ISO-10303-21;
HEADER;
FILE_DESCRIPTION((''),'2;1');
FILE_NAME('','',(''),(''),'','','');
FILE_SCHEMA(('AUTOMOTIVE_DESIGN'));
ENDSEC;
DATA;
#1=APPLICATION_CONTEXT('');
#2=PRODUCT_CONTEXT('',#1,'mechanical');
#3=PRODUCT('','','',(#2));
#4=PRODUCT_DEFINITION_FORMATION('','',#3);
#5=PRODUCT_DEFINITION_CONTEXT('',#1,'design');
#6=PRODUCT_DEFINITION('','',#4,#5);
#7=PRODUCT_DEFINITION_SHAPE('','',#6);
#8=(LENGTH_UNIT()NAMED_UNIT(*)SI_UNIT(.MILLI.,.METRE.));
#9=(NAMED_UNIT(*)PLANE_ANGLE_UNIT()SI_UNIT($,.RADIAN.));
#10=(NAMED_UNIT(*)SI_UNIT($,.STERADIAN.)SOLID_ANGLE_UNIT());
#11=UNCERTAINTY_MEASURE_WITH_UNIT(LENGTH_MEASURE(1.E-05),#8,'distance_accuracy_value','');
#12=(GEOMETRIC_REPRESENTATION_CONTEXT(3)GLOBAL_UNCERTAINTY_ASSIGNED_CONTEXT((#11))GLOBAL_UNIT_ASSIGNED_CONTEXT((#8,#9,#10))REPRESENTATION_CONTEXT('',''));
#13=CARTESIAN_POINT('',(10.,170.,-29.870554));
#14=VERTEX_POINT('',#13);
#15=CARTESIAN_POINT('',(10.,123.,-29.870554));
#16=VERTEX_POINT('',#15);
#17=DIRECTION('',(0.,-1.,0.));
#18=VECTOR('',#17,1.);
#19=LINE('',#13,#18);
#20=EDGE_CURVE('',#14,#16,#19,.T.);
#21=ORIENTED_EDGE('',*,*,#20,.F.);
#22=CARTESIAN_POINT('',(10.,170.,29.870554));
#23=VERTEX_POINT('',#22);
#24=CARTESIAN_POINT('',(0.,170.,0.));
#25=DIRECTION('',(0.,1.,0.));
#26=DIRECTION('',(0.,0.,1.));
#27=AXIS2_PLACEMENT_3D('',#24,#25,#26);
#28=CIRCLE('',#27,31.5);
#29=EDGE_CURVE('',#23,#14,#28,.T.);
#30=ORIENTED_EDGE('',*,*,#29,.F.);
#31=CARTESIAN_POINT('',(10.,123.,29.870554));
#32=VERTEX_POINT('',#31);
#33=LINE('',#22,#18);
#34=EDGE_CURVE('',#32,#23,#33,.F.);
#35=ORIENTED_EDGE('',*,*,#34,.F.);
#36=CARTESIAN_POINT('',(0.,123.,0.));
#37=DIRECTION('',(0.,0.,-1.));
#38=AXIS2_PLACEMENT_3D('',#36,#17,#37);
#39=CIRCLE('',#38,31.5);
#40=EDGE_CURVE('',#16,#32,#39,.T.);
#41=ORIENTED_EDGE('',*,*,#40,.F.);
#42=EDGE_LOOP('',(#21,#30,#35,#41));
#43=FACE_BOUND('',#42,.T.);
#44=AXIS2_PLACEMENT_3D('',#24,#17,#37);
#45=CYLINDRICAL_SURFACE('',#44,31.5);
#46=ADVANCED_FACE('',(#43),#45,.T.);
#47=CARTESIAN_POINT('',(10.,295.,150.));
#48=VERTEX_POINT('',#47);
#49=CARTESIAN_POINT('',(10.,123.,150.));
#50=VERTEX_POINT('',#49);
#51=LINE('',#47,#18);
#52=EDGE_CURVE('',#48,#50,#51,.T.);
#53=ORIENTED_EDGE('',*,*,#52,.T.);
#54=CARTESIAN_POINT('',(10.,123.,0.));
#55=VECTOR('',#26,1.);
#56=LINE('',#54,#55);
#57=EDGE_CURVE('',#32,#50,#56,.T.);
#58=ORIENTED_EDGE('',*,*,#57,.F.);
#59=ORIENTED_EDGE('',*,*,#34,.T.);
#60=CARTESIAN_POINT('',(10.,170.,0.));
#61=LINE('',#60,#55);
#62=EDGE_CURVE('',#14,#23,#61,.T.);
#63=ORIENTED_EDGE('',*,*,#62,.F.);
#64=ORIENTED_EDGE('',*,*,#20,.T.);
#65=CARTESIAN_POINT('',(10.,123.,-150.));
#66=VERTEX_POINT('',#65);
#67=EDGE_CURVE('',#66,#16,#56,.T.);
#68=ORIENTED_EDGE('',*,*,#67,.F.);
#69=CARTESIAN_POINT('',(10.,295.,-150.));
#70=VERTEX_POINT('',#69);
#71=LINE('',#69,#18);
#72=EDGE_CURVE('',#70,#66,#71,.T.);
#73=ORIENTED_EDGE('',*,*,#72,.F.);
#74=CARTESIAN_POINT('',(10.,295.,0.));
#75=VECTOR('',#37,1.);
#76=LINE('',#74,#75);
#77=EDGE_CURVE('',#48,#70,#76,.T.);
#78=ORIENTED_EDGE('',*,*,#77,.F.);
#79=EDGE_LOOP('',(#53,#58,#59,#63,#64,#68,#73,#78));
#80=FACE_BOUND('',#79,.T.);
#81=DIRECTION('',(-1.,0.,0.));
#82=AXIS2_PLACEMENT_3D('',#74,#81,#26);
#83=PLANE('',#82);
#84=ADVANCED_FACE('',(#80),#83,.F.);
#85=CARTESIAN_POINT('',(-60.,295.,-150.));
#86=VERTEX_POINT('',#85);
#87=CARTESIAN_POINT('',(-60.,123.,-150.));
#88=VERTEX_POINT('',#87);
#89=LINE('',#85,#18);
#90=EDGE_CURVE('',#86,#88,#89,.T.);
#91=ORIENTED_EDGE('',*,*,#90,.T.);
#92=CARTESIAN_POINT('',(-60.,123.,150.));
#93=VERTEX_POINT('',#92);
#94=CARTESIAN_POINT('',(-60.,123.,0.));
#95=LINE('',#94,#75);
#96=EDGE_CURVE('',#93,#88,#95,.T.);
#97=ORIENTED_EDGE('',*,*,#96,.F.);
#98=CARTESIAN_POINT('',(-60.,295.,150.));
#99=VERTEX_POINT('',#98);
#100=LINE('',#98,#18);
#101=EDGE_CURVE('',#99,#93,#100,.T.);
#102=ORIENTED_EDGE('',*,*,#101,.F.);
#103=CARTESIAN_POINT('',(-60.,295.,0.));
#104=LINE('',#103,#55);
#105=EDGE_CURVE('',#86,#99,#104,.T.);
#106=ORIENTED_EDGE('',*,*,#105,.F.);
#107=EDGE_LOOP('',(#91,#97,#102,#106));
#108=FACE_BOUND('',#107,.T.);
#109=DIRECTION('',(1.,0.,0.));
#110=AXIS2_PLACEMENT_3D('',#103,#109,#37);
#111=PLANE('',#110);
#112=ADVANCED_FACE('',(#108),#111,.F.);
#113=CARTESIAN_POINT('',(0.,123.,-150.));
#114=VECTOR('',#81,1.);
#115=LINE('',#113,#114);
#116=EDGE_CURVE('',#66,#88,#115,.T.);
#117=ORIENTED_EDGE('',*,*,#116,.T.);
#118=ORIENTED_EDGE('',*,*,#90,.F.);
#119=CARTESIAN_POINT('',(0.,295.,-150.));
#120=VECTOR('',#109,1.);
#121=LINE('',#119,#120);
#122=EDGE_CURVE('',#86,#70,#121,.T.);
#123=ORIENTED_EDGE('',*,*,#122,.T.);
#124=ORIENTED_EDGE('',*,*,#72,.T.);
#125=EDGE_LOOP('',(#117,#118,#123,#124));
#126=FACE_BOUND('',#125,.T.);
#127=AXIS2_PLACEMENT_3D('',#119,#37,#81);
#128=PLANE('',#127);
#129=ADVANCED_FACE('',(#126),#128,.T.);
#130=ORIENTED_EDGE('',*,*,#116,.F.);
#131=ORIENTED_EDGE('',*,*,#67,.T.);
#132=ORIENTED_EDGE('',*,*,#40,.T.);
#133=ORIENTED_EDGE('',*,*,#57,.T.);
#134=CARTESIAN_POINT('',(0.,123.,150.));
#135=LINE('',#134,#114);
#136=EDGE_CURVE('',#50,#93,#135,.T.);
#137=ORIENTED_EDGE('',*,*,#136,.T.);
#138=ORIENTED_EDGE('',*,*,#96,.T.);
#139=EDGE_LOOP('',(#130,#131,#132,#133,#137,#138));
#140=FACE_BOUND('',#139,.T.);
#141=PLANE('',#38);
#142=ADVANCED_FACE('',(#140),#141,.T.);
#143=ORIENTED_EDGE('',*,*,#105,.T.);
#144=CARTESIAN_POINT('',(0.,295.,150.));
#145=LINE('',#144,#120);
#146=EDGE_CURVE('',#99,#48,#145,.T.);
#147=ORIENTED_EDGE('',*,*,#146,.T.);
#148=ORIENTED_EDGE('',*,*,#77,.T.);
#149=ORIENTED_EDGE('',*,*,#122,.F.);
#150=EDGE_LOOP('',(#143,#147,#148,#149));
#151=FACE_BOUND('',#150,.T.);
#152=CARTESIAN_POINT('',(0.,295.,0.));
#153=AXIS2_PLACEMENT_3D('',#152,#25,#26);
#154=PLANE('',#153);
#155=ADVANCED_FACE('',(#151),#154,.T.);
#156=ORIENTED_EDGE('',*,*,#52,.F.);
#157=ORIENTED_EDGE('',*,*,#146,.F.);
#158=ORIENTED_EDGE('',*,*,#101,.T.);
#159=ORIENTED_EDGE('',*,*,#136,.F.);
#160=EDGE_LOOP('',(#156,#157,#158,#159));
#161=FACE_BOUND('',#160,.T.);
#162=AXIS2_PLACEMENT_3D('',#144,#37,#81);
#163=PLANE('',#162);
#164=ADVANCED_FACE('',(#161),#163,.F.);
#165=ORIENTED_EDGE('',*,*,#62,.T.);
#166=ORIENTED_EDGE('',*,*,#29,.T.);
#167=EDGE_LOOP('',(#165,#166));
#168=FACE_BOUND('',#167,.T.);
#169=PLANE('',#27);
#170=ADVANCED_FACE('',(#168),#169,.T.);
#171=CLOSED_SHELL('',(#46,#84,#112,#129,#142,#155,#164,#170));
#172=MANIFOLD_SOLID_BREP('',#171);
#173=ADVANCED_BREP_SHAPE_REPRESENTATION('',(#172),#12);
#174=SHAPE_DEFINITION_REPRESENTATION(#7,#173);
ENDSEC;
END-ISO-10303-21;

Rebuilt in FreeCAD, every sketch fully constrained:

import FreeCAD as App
import Part
import Sketcher
Q = App.Units.Quantity


def add_polygon(sketch, points):
    """Adds a closed chain of lines whose ends are joined by coincident constraints."""
    first, n = sketch.GeometryCount, len(points)
    for a, b in zip(points, points[1:] + points[:1]):
        sketch.addGeometry(Part.LineSegment(App.Vector(*a, 0), App.Vector(*b, 0)), False)
    for i in range(n):
        sketch.addConstraint(Sketcher.Constraint("Coincident", first + i, 2, first + (i + 1) % n, 1))

doc = App.newDocument("Part")
body = doc.addObject("PartDesign::Body", "Body")

# Sketch on XZ plane
sketch1 = body.newObject("Sketcher::SketchObject", "Sketch")
sketch1.AttachmentSupport = (doc.getObject("XZ_Plane"), [""])
sketch1.MapMode = "FlatFace"
sketch1.addGeometry(Part.Circle(App.Vector(0, 0, 0), App.Vector(0, 0, 1), 31.5), False)
sketch1.addConstraint(Sketcher.Constraint("Coincident", 0, 3, -1, 1))
sketch1.addConstraint(Sketcher.Constraint("Diameter", 0, Q("63 mm")))
pad1 = body.newObject("PartDesign::Pad", "Pad")
pad1.Profile = sketch1
pad1.Length = 170
pad1.Reversed = True

# Sketch on XZ plane
sketch2 = body.newObject("Sketcher::SketchObject", "Sketch001")
sketch2.AttachmentSupport = (doc.getObject("XZ_Plane"), [""])
sketch2.MapMode = "FlatFace"
sketch2.AttachmentOffset = App.Placement(App.Vector(0, 0, -170), App.Rotation())
add_polygon(sketch2, [(-60, -150), (-60, 150), (10, 150), (10, -150)])  # lines 0-3
sketch2.addConstraint(Sketcher.Constraint("Vertical", 0))
sketch2.addConstraint(Sketcher.Constraint("Horizontal", 1))
sketch2.addConstraint(Sketcher.Constraint("Vertical", 2))
sketch2.addConstraint(Sketcher.Constraint("Horizontal", 3))
sketch2.addConstraint(Sketcher.Constraint("DistanceX", 1, 1, 1, 2, Q("70 mm")))
sketch2.addConstraint(Sketcher.Constraint("DistanceY", 0, 1, 0, 2, Q("300 mm")))
sketch2.addConstraint(Sketcher.Constraint("DistanceX", 0, 2, -1, 1, Q("60 mm")))
sketch2.addConstraint(Sketcher.Constraint("DistanceY", -1, 1, 0, 2, Q("150 mm")))
pad2 = body.newObject("PartDesign::Pad", "Pad001")
pad2.Profile = sketch2
pad2.Type = "TwoLengths"
pad2.Length = 125
pad2.Length2 = 130
pad2.Reversed = True

# Sketch on XZ plane
sketch3 = body.newObject("Sketcher::SketchObject", "Sketch002")
sketch3.AttachmentSupport = (doc.getObject("XZ_Plane"), [""])
sketch3.MapMode = "FlatFace"
sketch3.AttachmentOffset = App.Placement(App.Vector(0, 0, -170), App.Rotation())
add_polygon(sketch3, [(-60, -150), (-60, 150), (10, 150), (10, -150)])  # lines 0-3
sketch3.addConstraint(Sketcher.Constraint("Vertical", 0))
sketch3.addConstraint(Sketcher.Constraint("Horizontal", 1))
sketch3.addConstraint(Sketcher.Constraint("Vertical", 2))
sketch3.addConstraint(Sketcher.Constraint("Horizontal", 3))
sketch3.addConstraint(Sketcher.Constraint("DistanceX", 1, 1, 1, 2, Q("70 mm")))
sketch3.addConstraint(Sketcher.Constraint("DistanceY", 0, 1, 0, 2, Q("300 mm")))
sketch3.addConstraint(Sketcher.Constraint("DistanceX", 0, 2, -1, 1, Q("60 mm")))
sketch3.addConstraint(Sketcher.Constraint("DistanceY", -1, 1, 0, 2, Q("150 mm")))
pad3 = body.newObject("PartDesign::Pad", "Pad002")
pad3.Profile = sketch3
pad3.Length = 10
pad3.Reversed = True

# Sketch on XZ plane
sketch4 = body.newObject("Sketcher::SketchObject", "Sketch003")
sketch4.AttachmentSupport = (doc.getObject("XZ_Plane"), [""])
sketch4.MapMode = "FlatFace"
add_polygon(sketch4, [(-157.844695, 216.894304), (-157.844695, -216.894304), (157.844695, -216.894304), (157.844695, 216.894304)])  # lines 0-3
sketch4.addConstraint(Sketcher.Constraint("Vertical", 0))
sketch4.addConstraint(Sketcher.Constraint("Horizontal", 1))
sketch4.addConstraint(Sketcher.Constraint("Vertical", 2))
sketch4.addConstraint(Sketcher.Constraint("Horizontal", 3))
sketch4.addConstraint(Sketcher.Constraint("Symmetric", 0, 2, 2, 2, -1, 1))
sketch4.addConstraint(Sketcher.Constraint("DistanceX", 1, 1, 1, 2, Q("315.68939 mm")))
sketch4.addConstraint(Sketcher.Constraint("DistanceY", 0, 2, 0, 1, Q("433.788608 mm")))
pocket1 = body.newObject("PartDesign::Pocket", "Pocket")
pocket1.Profile = sketch4
pocket1.Length = 123

doc.recompute()
